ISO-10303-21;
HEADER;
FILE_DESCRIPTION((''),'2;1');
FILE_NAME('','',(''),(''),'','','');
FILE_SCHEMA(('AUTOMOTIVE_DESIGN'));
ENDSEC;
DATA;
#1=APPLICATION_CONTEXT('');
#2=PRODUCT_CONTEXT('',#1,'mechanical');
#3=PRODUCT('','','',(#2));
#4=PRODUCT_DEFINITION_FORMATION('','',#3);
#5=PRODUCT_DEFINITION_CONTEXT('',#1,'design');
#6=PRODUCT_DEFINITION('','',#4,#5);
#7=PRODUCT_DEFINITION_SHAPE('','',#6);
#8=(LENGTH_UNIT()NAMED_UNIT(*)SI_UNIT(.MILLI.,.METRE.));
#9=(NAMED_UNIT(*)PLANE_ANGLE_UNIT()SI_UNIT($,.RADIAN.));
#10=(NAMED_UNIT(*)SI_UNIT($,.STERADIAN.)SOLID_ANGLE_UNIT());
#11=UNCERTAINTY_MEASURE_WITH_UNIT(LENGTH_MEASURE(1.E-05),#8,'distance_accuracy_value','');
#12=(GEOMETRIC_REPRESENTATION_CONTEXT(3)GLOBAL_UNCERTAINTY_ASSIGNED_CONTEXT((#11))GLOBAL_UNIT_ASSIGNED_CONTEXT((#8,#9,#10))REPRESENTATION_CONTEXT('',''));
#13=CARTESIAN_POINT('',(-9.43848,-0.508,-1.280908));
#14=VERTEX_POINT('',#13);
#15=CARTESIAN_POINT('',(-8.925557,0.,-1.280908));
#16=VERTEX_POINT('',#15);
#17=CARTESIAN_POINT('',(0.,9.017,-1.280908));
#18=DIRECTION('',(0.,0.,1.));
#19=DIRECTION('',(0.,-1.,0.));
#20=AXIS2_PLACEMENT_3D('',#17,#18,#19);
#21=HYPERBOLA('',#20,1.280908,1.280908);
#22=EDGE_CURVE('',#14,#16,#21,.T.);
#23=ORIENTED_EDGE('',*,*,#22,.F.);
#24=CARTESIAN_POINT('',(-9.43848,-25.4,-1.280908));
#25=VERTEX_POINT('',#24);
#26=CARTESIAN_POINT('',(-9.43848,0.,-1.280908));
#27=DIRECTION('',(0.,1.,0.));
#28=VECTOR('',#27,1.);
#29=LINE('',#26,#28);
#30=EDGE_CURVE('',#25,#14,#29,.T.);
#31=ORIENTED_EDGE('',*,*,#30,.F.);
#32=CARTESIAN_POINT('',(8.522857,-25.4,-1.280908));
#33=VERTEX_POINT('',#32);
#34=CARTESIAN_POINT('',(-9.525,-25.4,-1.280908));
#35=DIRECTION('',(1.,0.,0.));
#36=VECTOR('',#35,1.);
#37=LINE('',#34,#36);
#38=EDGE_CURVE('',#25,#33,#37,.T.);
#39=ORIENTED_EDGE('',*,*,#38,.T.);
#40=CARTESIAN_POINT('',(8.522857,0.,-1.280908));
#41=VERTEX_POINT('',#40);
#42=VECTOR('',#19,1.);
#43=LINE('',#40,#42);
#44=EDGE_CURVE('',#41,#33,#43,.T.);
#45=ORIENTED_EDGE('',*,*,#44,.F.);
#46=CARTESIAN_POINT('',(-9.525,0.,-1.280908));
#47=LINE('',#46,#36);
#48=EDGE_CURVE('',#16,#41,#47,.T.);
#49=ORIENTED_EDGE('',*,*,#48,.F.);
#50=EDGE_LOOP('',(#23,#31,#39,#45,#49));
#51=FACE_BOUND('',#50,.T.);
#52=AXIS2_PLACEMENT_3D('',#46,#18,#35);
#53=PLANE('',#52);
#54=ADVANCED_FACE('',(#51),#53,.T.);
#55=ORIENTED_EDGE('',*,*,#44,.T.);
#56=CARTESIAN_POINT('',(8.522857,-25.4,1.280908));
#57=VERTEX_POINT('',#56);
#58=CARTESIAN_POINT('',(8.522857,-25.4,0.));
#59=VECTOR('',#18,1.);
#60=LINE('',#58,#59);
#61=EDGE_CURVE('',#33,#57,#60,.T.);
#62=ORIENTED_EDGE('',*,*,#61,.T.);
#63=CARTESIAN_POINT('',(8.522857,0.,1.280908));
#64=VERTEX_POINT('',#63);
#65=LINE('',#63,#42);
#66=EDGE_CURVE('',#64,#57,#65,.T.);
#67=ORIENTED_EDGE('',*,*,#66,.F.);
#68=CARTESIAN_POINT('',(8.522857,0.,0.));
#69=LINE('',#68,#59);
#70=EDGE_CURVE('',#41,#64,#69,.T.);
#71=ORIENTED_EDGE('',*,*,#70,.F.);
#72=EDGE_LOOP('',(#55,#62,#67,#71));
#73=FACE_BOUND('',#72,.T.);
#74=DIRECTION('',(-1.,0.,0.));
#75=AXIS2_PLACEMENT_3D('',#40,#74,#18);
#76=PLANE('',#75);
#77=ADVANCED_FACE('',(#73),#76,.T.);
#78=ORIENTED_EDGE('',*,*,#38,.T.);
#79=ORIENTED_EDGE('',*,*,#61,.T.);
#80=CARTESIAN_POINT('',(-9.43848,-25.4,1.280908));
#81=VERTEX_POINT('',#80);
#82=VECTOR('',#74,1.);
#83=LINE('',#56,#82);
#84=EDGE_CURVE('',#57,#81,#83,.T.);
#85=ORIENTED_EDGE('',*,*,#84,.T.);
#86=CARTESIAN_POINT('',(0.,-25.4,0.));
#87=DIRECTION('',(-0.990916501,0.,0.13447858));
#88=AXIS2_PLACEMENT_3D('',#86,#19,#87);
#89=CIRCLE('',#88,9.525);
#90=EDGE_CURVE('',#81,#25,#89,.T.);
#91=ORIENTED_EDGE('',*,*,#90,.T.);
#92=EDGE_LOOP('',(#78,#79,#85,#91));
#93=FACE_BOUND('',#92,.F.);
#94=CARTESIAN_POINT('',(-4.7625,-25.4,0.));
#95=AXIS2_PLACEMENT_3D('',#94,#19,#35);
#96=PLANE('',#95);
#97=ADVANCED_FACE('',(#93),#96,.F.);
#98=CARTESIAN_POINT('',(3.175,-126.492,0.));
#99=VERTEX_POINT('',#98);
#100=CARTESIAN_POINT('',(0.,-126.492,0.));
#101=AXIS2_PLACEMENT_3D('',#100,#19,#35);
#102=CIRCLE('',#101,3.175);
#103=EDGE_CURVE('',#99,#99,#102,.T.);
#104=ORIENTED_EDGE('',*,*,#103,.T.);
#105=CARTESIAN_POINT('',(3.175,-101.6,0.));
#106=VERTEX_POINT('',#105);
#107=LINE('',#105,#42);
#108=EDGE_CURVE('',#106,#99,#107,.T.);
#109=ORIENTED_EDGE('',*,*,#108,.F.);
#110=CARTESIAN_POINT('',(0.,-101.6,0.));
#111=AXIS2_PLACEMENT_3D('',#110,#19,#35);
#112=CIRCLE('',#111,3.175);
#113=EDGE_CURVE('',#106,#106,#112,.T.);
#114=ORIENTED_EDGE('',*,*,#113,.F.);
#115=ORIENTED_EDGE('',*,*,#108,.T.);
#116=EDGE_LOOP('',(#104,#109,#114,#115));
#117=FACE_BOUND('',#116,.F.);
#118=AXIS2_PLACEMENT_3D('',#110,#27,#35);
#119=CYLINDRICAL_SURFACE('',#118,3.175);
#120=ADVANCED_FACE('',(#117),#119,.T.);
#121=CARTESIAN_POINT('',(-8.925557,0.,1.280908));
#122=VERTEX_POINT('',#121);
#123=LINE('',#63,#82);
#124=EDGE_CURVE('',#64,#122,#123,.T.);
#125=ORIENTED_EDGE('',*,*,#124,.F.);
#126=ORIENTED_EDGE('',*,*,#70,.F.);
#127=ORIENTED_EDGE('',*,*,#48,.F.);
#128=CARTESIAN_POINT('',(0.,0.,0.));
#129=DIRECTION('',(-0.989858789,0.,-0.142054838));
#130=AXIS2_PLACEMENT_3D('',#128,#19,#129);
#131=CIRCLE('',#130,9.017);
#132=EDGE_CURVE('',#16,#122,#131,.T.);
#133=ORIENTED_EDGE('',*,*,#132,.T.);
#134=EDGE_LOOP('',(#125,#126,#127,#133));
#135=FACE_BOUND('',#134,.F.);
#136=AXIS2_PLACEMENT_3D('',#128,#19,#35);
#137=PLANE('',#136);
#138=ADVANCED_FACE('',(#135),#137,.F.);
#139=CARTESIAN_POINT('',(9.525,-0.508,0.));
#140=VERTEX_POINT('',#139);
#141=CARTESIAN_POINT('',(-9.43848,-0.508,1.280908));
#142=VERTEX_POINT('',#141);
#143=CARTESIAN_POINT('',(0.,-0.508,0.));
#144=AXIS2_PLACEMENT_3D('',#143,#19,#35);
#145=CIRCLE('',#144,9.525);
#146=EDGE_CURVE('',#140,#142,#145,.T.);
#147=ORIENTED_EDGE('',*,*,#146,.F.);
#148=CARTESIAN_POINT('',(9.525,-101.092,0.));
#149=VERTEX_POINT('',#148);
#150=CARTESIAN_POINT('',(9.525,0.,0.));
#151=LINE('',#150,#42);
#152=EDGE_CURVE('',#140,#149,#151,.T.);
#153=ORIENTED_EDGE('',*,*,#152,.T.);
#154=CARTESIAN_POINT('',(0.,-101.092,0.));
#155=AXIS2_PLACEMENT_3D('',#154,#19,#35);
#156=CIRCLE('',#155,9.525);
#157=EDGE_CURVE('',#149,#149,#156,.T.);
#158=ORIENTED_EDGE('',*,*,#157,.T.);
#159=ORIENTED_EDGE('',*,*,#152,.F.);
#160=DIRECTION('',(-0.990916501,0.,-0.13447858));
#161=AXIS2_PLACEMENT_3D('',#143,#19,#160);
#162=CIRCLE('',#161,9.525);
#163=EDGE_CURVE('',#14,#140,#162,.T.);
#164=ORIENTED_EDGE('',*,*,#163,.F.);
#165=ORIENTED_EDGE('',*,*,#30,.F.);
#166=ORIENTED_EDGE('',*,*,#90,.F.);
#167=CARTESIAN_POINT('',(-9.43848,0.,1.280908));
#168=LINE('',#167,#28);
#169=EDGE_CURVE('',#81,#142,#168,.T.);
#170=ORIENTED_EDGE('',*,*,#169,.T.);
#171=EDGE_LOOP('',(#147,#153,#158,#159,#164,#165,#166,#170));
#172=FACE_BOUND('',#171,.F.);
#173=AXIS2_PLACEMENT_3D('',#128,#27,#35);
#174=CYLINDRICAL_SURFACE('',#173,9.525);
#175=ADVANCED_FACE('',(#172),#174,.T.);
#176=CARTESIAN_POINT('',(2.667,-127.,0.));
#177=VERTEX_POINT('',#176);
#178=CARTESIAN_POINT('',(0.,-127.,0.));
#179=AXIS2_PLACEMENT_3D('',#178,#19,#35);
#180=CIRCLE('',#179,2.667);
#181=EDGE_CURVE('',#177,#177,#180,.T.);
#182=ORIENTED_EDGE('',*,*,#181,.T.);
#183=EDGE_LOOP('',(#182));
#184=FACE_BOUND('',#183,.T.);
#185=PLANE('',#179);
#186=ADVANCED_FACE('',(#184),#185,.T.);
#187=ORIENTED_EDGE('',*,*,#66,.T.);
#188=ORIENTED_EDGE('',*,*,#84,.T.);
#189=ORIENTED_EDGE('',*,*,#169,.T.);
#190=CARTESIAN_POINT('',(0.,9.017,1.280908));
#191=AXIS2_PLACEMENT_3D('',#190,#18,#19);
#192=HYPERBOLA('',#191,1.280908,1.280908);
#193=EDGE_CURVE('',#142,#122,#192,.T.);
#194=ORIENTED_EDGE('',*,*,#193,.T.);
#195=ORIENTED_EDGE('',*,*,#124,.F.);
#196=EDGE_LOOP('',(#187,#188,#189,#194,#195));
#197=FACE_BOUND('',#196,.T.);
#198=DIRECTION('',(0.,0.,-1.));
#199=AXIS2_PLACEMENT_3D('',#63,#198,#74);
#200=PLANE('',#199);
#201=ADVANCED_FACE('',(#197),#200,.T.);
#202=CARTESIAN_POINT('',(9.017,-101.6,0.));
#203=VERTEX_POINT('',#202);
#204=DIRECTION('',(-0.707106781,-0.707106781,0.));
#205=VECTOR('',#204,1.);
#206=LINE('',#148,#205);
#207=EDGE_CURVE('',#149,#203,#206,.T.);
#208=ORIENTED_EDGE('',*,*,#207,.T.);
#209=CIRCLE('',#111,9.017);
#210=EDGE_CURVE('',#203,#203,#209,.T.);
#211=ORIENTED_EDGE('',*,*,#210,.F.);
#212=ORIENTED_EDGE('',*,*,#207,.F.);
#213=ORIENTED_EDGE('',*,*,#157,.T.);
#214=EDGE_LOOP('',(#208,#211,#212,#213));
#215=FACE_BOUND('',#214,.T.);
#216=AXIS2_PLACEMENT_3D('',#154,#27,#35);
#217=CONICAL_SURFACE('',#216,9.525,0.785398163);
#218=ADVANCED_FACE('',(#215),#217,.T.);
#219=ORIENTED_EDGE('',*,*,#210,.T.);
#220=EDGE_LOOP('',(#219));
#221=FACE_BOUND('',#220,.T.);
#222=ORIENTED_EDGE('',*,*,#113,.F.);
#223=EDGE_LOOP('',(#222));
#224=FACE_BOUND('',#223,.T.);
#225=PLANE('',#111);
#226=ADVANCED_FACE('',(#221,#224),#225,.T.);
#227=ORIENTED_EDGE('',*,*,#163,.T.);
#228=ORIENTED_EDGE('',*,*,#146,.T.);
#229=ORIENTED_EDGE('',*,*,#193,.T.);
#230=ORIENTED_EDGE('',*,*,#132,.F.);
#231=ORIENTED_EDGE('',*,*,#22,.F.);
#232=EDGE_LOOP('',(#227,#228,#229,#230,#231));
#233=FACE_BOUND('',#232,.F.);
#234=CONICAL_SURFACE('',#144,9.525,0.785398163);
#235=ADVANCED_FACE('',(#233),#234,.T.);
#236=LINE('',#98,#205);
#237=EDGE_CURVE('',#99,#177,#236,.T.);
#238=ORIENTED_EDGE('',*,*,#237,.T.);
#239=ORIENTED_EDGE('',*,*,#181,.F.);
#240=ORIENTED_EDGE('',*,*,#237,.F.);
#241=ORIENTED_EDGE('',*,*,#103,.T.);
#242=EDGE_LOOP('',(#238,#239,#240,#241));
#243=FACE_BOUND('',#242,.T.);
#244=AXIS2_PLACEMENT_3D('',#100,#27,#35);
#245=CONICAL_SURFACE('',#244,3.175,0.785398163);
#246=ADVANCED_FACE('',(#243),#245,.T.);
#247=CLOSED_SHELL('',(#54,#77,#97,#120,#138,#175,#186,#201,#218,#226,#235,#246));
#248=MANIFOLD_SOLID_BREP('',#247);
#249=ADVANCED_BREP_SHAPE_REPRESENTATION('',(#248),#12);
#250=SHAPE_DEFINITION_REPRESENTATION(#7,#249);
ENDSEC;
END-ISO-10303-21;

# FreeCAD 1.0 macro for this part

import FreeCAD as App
import Part
import Sketcher

V = App.Vector
Q = App.Units.Quantity


def edges_at(feature, points):
    """Names of the edges that pass closest to the given points."""
    edges = feature.Shape.Edges
    near = lambda p: min(range(len(edges)), key=lambda i: edges[i].distToShape(Part.Vertex(*p))[0])
    return sorted({f"Edge{near(p) + 1}" for p in points})


def add_polygon(sketch, points):
    """Adds a closed chain of lines whose ends are joined by coincident constraints."""
    first, n = sketch.GeometryCount, len(points)
    for a, b in zip(points, points[1:] + points[:1]):
        sketch.addGeometry(Part.LineSegment(App.Vector(*a, 0), App.Vector(*b, 0)), False)
    for i in range(n):
        sketch.addConstraint(Sketcher.Constraint("Coincident", first + i, 2, first + (i + 1) % n, 1))

doc = App.newDocument("Part")
params = doc.addObject("Spreadsheet::Sheet", "Params")
for row, (alias, value) in enumerate([
    ("sketch1_diameter", "0.75 in"),
    ("pad1_length", "4 in"),
    ("pocket1_length", "1 in"),
    ("sketch3_diameter", "0.25 in"),
    ("pad2_length", "1 in"),
    ("chamfer_size", "0.02 in"),
], start=1):
    params.set(f"A{row}", alias)
    params.set(f"B{row}", "=" + value)
    params.setAlias(f"B{row}", alias)

body = doc.addObject("PartDesign::Body", "Body")

sketch1 = doc.addObject("Sketcher::SketchObject", "Sketch")
body.addObject(sketch1)
sketch1.AttachmentSupport = (doc.XZ_Plane, [""])
sketch1.MapMode = "FlatFace"
sketch1.addGeometry(Part.Circle(V(0, 0, 0), V(0, 0, 1), 10), False)
sketch1.addConstraint([
    Sketcher.Constraint("Coincident", 0, 3, -1, 1),
    Sketcher.Constraint("Diameter", 0, Q("0.75 in")),
])
sketch1.setExpression("Constraints[1]", "Params.sketch1_diameter")
pad1 = doc.addObject("PartDesign::Pad", "Pad")
body.addObject(pad1)
pad1.Profile = sketch1
pad1.setExpression("Length", "Params.pad1_length")

sketch2 = doc.addObject("Sketcher::SketchObject", "Sketch001")
body.addObject(sketch2)
sketch2.AttachmentSupport = (doc.XZ_Plane, [""])
sketch2.MapMode = "FlatFace"
add_polygon(sketch2, [(-9.5, 1.3), (-9.5, -1.3), (8.5, -1.3), (8.5, 1.3)])
sketch2.addConstraint([
    Sketcher.Constraint("Vertical", 0),
    Sketcher.Constraint("Horizontal", 1),
    Sketcher.Constraint("Vertical", 2),
    Sketcher.Constraint("Horizontal", 3),
    Sketcher.Constraint("DistanceX", 0, 2, -1, 1, Q("0.375 in")),
    Sketcher.Constraint("DistanceX", 1, 1, 1, 2, 18.047857),
    Sketcher.Constraint("DistanceY", 0, 2, 0, 1, 2.561817),
    Sketcher.Constraint("DistanceY", 0, 2, -1, 1, 1.280908),
])
pocket1 = doc.addObject("PartDesign::Pocket", "Pocket")
body.addObject(pocket1)
pocket1.Profile = sketch2
pocket1.setExpression("Length", "Params.pocket1_length")
pocket1.Reversed = True

sketch3 = doc.addObject("Sketcher::SketchObject", "Sketch002")
body.addObject(sketch3)
sketch3.AttachmentSupport = (doc.XZ_Plane, [""])
sketch3.MapMode = "FlatFace"
sketch3.AttachmentOffset = App.Placement(V(0, 0, 4 * 25.4), App.Rotation())
sketch3.addGeometry(Part.Circle(V(0, 0, 0), V(0, 0, 1), 3.2), False)
sketch3.addConstraint([
    Sketcher.Constraint("Coincident", 0, 3, -1, 1),
    Sketcher.Constraint("Diameter", 0, Q("0.25 in")),
])
sketch3.setExpression("Constraints[1]", "Params.sketch3_diameter")
pad2 = doc.addObject("PartDesign::Pad", "Pad001")
body.addObject(pad2)
pad2.Profile = sketch3
pad2.setExpression("Length", "Params.pad2_length")
doc.recompute()

chamfer = doc.addObject("PartDesign::Chamfer", "Chamfer")
body.addObject(chamfer)
chamfer.Base = (pad2, edges_at(pad2, [
    (-3.175, -127, 0),
    (-9.525, -101.6, 0),
    (0.642, 0, 9.503),
    (0.642, 0, -9.503),
]))
chamfer.setExpression("Size", "Params.chamfer_size")

doc.recompute()
